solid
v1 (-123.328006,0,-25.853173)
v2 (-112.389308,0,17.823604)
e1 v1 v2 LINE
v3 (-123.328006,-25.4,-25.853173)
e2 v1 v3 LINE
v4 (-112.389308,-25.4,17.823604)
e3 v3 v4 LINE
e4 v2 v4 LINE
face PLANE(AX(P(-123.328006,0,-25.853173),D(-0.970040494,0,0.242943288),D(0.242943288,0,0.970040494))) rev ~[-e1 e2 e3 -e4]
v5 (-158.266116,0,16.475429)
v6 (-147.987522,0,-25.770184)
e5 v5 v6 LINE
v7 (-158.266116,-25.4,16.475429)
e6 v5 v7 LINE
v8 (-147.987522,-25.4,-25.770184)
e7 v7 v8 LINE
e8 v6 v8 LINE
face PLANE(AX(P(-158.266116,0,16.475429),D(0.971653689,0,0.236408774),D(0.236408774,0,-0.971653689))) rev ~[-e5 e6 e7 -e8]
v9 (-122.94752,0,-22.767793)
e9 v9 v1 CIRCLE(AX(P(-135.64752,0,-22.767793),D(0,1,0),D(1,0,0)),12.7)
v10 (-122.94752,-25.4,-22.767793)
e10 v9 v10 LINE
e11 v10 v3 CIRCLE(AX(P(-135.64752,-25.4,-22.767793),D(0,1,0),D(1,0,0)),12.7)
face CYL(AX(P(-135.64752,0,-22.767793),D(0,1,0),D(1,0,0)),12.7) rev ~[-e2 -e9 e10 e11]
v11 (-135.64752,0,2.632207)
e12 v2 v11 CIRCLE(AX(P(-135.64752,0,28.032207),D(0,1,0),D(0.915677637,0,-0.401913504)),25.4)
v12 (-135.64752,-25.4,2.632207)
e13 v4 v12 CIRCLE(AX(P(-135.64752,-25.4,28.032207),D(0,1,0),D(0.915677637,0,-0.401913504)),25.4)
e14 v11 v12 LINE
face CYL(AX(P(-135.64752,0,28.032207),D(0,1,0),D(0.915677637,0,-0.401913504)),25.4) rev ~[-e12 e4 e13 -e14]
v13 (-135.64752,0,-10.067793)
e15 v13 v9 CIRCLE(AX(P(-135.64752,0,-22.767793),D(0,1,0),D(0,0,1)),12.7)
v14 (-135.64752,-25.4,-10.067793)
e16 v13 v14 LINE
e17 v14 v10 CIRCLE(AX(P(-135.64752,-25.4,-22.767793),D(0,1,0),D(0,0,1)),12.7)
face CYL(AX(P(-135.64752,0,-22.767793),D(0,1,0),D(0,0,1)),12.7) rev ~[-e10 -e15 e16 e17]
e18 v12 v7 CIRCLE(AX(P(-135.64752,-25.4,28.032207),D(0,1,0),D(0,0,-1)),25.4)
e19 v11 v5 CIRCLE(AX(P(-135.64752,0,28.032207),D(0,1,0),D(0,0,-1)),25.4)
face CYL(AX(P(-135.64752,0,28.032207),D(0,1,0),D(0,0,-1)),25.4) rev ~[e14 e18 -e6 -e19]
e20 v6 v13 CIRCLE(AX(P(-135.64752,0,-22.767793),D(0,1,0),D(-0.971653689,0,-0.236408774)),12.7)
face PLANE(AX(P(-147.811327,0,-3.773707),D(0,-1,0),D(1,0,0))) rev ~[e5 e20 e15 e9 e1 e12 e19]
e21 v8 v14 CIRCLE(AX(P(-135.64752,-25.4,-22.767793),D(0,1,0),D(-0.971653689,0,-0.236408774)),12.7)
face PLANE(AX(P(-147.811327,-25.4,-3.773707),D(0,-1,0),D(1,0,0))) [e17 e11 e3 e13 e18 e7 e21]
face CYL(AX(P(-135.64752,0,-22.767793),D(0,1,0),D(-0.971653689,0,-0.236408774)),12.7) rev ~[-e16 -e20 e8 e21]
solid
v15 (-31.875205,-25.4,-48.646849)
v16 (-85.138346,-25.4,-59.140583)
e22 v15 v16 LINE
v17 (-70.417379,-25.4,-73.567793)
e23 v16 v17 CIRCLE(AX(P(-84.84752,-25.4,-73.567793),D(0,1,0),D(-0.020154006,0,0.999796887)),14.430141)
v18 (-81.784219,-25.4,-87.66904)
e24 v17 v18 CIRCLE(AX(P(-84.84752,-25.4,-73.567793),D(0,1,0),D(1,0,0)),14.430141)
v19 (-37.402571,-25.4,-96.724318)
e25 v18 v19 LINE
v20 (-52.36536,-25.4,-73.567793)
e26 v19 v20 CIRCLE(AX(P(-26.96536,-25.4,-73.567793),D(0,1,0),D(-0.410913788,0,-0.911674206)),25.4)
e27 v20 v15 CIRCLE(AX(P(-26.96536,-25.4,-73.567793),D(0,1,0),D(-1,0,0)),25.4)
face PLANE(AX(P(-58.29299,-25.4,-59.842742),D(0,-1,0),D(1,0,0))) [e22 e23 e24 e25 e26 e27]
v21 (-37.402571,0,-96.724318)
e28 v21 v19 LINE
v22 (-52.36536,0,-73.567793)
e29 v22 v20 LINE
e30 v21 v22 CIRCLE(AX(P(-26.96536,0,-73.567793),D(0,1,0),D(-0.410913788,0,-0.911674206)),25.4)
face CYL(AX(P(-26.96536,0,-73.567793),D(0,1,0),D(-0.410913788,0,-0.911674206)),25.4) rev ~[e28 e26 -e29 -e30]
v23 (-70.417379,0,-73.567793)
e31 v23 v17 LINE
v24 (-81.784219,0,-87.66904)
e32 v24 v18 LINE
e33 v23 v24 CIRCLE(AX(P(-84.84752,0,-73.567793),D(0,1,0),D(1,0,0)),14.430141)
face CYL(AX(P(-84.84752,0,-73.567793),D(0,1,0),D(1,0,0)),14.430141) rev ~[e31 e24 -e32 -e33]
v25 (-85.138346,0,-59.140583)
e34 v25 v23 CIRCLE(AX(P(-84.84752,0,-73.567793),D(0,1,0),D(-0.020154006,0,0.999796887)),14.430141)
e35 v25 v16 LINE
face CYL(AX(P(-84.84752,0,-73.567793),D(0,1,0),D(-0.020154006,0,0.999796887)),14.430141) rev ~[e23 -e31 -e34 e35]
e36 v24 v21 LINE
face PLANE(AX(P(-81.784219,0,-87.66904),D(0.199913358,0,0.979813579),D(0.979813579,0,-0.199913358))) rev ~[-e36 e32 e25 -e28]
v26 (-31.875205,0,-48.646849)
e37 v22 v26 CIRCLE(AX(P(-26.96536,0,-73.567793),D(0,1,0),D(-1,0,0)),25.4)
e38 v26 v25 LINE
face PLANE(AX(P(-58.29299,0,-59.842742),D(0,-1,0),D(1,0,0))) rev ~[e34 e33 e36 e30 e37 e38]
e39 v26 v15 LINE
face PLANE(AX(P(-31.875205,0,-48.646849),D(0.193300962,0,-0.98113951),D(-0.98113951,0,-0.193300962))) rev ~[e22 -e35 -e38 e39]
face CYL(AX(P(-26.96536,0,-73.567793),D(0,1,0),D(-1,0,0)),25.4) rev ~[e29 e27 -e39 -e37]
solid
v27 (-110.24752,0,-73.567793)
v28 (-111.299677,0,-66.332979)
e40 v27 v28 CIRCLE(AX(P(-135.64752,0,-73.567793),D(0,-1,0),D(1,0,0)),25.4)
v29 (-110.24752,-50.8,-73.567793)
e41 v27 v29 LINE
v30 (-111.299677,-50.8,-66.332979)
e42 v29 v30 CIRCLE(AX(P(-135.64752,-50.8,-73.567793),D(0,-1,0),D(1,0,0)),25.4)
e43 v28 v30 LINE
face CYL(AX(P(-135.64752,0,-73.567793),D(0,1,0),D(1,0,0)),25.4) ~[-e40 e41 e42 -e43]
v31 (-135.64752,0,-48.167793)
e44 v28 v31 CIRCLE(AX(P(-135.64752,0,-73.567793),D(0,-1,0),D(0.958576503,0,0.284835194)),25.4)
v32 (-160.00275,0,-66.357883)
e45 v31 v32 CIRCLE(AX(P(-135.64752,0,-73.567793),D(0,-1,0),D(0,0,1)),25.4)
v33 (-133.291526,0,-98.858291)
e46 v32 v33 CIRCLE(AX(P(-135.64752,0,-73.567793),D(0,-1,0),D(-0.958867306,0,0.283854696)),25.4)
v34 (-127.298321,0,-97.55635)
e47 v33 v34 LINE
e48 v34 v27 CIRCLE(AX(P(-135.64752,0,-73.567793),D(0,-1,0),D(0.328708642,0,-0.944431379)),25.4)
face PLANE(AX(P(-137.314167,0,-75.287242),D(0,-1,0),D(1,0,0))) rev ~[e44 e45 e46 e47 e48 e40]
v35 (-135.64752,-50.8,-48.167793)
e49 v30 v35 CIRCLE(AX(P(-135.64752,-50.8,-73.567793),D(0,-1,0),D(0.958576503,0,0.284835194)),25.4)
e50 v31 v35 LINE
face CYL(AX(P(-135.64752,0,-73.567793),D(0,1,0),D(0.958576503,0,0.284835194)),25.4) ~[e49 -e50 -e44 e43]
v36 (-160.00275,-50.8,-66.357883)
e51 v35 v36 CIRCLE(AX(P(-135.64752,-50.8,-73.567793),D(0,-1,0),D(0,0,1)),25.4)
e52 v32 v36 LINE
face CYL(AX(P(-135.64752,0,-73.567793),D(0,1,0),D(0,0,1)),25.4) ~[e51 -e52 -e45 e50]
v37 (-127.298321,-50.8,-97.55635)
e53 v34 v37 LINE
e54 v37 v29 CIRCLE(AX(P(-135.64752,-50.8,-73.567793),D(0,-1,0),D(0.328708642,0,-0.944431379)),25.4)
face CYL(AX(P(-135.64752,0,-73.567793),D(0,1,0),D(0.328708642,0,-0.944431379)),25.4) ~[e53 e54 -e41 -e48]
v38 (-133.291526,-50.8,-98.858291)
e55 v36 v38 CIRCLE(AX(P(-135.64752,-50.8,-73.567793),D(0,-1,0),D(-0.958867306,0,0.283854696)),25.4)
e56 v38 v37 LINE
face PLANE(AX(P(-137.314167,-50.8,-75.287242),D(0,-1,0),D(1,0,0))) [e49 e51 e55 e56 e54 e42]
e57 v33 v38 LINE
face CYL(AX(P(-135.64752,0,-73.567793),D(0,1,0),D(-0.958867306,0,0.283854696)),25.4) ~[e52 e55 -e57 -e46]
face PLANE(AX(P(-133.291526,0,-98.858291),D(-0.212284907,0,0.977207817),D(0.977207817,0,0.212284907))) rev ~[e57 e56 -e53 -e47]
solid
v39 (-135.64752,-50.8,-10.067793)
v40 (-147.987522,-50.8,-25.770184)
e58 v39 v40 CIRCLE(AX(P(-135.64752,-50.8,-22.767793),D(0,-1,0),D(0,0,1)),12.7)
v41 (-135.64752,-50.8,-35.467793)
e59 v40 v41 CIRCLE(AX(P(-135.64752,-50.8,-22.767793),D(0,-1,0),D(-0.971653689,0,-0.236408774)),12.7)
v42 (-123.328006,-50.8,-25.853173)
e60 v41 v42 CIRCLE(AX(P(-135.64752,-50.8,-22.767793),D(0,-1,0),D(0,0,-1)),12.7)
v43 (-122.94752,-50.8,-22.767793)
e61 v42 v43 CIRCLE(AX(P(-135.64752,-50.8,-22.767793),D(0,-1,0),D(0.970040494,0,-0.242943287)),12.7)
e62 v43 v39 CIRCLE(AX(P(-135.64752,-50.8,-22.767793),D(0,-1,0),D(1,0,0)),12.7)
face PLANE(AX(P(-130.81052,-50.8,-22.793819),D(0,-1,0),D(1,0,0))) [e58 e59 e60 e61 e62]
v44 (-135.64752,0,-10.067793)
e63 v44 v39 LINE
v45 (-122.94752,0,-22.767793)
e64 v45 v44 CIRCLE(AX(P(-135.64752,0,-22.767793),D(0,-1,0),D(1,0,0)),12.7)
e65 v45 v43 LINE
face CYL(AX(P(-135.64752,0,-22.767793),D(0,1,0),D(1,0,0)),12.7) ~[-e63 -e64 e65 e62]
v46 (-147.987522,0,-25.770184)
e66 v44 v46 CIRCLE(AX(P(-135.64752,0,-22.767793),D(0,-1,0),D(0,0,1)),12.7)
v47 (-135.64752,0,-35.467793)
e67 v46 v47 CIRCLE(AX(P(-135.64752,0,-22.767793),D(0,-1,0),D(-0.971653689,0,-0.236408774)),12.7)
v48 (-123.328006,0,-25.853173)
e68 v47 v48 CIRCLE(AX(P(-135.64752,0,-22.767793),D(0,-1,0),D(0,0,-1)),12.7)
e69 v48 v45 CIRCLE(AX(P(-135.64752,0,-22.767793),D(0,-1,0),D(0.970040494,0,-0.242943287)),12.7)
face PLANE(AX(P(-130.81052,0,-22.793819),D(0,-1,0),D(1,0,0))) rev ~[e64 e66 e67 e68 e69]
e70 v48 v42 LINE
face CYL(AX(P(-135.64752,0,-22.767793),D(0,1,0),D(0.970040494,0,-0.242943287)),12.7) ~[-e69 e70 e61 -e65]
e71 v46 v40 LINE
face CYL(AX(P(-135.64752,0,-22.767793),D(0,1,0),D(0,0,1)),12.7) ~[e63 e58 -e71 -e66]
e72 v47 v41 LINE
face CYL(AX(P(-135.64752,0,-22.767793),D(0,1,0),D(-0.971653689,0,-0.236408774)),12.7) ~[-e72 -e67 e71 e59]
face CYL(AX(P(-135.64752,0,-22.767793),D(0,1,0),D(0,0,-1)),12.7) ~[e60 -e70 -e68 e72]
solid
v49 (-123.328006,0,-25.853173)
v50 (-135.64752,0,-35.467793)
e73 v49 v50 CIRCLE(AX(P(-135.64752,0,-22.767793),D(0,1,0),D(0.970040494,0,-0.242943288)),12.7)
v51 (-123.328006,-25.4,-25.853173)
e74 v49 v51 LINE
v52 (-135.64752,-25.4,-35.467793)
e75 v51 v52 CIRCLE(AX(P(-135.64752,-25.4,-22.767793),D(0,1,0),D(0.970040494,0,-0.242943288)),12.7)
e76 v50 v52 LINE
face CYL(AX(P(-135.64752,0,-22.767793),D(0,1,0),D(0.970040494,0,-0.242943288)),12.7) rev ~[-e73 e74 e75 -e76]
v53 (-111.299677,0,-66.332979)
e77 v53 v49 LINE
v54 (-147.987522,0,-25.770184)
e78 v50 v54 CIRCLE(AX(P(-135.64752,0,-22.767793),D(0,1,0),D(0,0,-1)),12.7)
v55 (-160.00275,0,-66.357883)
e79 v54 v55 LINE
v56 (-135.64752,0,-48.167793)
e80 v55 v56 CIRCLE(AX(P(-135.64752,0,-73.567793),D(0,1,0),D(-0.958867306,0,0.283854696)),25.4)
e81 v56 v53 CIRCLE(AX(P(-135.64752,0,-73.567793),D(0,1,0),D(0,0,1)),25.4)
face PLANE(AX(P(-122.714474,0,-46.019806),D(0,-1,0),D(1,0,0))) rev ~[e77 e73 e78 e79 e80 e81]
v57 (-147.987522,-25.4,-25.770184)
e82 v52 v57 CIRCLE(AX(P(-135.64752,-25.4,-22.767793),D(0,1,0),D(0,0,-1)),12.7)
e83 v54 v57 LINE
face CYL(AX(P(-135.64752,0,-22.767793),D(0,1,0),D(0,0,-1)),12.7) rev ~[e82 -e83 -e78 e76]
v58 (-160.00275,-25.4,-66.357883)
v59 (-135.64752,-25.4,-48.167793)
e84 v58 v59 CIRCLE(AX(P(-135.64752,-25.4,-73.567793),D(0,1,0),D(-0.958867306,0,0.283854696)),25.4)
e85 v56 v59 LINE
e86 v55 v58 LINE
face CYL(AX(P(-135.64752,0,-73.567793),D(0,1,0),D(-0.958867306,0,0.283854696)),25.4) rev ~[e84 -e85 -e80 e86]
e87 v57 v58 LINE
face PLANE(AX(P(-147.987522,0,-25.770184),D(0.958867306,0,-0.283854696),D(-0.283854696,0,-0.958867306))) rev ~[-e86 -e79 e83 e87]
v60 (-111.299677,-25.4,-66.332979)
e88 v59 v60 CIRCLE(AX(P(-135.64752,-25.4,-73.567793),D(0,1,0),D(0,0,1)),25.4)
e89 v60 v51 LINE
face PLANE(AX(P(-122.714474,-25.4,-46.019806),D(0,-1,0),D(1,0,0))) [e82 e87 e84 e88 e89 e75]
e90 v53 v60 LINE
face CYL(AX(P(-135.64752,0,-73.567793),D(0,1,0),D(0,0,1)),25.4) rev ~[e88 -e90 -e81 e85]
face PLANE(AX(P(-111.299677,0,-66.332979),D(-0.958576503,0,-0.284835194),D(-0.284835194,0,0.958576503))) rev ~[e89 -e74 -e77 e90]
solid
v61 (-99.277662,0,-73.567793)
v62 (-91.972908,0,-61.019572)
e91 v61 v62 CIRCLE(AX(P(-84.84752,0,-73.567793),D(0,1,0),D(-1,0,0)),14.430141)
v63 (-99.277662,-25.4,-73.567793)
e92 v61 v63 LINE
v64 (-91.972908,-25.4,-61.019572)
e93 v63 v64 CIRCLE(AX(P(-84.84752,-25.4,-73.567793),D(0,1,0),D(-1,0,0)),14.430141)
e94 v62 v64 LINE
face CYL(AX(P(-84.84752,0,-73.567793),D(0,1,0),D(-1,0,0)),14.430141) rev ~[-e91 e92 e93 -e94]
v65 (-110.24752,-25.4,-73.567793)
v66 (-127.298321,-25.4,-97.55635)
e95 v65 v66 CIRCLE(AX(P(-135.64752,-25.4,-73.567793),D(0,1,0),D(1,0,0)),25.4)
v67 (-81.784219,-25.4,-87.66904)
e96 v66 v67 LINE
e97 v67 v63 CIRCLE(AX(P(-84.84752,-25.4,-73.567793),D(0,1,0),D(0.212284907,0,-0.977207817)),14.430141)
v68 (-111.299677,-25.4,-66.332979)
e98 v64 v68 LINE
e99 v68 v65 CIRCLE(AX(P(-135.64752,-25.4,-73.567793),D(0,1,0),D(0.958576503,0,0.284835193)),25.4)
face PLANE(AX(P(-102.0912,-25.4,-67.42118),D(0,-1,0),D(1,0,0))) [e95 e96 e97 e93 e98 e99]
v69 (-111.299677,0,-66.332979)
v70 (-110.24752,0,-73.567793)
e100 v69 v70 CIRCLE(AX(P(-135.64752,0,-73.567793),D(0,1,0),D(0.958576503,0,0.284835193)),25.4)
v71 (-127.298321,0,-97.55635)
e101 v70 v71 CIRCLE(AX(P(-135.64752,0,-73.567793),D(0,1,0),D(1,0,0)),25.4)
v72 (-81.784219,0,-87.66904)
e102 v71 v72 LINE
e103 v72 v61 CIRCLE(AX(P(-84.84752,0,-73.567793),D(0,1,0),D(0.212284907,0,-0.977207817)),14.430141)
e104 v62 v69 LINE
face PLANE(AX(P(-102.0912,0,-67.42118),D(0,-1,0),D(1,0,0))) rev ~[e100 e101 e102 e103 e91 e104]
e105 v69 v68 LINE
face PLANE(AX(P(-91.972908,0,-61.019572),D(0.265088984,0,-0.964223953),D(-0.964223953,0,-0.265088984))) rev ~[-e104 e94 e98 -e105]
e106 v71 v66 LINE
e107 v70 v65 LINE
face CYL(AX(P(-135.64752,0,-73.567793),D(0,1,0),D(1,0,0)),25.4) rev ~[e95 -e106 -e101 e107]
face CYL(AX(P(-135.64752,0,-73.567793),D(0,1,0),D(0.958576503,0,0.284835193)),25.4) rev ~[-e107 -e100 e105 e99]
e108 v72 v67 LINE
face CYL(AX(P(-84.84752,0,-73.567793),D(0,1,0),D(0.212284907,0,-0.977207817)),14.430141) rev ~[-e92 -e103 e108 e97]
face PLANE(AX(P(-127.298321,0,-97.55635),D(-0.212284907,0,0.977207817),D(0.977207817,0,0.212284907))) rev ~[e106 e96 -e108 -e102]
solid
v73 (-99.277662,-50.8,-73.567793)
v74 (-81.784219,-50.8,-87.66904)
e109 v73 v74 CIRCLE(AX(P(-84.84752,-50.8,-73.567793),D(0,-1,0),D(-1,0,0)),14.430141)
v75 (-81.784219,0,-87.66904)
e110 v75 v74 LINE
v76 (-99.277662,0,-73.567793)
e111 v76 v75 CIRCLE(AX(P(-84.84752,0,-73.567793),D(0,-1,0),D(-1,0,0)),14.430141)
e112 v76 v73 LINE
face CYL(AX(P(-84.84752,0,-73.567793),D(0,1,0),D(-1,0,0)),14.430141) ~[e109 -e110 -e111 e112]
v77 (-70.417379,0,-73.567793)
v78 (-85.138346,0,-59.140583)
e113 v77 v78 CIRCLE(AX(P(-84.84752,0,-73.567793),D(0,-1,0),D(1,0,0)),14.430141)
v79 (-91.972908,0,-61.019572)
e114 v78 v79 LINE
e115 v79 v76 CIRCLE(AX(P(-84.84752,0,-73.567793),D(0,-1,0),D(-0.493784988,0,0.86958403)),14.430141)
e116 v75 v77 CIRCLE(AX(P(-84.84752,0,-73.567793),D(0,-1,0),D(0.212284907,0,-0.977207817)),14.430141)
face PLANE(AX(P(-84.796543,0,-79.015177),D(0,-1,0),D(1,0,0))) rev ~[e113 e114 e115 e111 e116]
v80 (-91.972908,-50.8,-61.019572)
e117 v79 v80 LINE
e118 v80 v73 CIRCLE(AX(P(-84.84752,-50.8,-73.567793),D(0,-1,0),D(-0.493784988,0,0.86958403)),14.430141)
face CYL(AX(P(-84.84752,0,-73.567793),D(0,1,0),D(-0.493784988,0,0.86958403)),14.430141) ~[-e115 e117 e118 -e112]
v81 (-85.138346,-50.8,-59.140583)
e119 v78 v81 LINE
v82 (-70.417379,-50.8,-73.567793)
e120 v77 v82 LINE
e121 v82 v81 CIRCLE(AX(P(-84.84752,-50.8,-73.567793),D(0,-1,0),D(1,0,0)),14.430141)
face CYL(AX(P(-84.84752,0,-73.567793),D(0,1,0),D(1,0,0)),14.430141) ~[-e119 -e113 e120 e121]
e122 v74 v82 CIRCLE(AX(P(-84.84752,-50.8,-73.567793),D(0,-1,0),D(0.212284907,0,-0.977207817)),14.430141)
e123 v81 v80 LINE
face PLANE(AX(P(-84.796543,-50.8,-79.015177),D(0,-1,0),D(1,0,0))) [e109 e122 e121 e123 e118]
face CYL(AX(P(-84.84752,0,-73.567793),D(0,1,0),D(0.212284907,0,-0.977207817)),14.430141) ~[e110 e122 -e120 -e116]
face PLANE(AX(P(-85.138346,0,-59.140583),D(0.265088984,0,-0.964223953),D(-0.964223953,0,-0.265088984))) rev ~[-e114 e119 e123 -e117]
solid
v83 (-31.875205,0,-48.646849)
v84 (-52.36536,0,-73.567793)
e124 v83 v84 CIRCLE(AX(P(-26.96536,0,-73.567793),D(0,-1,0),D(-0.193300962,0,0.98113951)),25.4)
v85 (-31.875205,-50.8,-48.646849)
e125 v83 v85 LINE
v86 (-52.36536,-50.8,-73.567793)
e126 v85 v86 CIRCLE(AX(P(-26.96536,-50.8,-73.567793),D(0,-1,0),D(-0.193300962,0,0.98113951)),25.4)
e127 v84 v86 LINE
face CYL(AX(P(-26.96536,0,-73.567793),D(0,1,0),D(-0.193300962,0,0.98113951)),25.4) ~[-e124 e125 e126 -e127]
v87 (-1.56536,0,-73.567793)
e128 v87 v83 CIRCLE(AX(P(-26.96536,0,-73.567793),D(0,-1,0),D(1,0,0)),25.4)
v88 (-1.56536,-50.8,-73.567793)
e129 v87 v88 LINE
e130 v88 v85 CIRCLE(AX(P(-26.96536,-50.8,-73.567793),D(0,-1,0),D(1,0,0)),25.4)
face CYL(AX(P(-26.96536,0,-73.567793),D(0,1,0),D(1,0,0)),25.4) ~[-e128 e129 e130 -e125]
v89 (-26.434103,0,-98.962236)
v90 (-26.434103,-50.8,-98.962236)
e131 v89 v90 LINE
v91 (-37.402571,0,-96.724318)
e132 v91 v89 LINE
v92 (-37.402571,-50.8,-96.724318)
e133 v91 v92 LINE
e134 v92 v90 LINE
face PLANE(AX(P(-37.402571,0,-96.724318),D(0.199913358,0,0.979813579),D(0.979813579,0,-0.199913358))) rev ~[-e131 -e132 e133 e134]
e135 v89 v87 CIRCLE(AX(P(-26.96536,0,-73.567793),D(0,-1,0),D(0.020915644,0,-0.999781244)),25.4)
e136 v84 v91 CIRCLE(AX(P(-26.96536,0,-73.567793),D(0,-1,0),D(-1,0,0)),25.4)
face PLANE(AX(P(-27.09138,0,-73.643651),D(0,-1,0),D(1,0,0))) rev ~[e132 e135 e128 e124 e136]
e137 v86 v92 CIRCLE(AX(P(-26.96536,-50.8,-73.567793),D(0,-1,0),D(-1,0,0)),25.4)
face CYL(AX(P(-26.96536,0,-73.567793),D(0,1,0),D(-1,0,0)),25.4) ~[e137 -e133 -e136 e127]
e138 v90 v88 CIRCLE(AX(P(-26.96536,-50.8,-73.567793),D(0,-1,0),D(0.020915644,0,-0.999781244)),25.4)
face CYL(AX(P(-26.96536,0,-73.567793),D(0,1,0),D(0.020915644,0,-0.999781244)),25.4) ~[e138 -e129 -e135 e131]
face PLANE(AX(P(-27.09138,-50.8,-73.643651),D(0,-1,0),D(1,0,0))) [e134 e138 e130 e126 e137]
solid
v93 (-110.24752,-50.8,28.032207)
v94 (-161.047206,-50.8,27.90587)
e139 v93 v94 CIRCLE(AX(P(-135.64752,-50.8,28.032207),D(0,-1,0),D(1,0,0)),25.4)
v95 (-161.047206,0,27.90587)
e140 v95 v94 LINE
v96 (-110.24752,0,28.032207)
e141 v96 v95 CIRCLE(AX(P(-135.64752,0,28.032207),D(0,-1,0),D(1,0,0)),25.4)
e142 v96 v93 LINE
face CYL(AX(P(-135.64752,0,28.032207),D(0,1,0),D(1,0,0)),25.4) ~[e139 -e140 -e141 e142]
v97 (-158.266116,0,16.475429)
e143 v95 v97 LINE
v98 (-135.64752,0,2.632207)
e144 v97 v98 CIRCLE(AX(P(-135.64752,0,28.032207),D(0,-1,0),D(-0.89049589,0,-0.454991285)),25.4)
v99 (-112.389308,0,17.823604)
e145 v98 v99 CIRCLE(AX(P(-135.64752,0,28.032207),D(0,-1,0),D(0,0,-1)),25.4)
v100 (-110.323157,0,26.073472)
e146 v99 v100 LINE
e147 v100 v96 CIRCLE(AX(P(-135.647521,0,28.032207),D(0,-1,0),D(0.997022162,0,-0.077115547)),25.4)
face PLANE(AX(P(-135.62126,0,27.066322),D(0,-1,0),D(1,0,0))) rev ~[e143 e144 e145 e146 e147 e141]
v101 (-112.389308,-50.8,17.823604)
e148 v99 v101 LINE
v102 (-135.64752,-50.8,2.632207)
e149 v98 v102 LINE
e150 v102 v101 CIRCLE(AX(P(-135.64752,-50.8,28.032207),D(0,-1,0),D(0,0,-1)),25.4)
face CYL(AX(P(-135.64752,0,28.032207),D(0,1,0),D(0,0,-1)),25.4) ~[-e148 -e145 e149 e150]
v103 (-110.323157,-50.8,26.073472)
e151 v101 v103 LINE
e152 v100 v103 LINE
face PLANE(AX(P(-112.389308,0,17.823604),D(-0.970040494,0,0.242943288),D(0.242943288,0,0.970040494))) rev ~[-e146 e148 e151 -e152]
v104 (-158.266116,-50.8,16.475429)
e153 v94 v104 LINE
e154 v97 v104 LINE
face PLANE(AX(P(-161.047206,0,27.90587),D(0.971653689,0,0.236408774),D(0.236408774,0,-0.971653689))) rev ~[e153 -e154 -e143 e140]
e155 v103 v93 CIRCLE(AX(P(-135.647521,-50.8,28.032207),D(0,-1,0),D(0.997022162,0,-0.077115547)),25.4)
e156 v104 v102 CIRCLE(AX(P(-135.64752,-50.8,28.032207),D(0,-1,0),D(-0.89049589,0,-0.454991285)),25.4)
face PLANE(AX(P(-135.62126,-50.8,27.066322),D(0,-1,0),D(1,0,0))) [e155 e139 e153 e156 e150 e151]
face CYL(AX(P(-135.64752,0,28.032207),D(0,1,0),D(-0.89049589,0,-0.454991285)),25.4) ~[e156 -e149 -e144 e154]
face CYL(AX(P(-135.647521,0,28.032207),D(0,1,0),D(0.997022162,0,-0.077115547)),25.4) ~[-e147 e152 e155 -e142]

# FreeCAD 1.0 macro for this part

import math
import FreeCAD as App
import Part
import Sketcher
Q = App.Units.Quantity

doc = App.newDocument("Part")
body = doc.addObject("PartDesign::Body", "Body")

# Sketch on XZ plane
sketch1 = body.newObject("Sketcher::SketchObject", "Sketch")
sketch1.AttachmentSupport = (doc.getObject("XZ_Plane"), [""])
sketch1.MapMode = "FlatFace"
sketch1.addGeometry([
    Part.ArcOfCircle(Part.Circle(App.Vector(-135.6, 28, 0), App.Vector(0, 0, 1), 25.4), math.radians(-90), math.radians(-24)),  # 0
    Part.LineSegment(App.Vector(-112.4, 17.8, 0), App.Vector(-110.3, 26.1, 0)),  # 1
    Part.ArcOfCircle(Part.Circle(App.Vector(-135.6, 28, 0), App.Vector(0, 0, 1), 25.4), math.radians(-4.42), math.radians(0)),  # 2
    Part.ArcOfCircle(Part.Circle(App.Vector(-135.6, 28, 0), App.Vector(0, 0, 1), 25.4), math.radians(0), math.radians(180)),  # 3
    Part.LineSegment(App.Vector(-161, 27.9, 0), App.Vector(-158.3, 16.5, 0)),  # 4
    Part.ArcOfCircle(Part.Circle(App.Vector(-135.6, 28, 0), App.Vector(0, 0, 1), 25.4), math.radians(-153), math.radians(-90)),  # 5
], False)
sketch1.addConstraint([
    Sketcher.Constraint("Coincident", 0, 2, 1, 1),
    Sketcher.Constraint("Coincident", 1, 2, 2, 1),
    Sketcher.Constraint("Tangent", 2, 2, 3, 1),
    Sketcher.Constraint("Coincident", 3, 2, 4, 1),
    Sketcher.Constraint("Coincident", 4, 2, 5, 1),
    Sketcher.Constraint("Tangent", 5, 2, 0, 1),
    Sketcher.Constraint("Coincident", 2, 3, 0, 3),
    Sketcher.Constraint("Equal", 0, 2),
    Sketcher.Constraint("Equal", 2, 3),
    Sketcher.Constraint("Equal", 3, 5),
    Sketcher.Constraint("Horizontal", 5, 3, 2, 2),
    Sketcher.Constraint("Vertical", 3, 3, 5, 2),
    Sketcher.Constraint("Radius", 0, Q("1 in")),
    Sketcher.Constraint("DistanceX", 0, 3, -1, 1, Q("135.64752 mm")),
    Sketcher.Constraint("DistanceX", 0, 2, -1, 1, Q("112.389308 mm")),
    Sketcher.Constraint("DistanceY", -1, 1, 3, 2, Q("27.90587 mm")),
    Sketcher.Constraint("DistanceY", -1, 1, 4, 2, Q("16.475429 mm")),
    Sketcher.Constraint("DistanceX", 0, 2, 1, 2, Q("2.066151 mm")),
    Sketcher.Constraint("DistanceX", 3, 2, 4, 2, Q("2.78109 mm")),
])
pad1 = body.newObject("PartDesign::Pad", "Pad")
pad1.Profile = sketch1
pad1.Length = Q("2 in")
body2 = doc.addObject("PartDesign::Body", "Body001")

# Sketch on XZ plane
sketch2 = body2.newObject("Sketcher::SketchObject", "Sketch001")
sketch2.AttachmentSupport = (doc.getObject("XZ_Plane001"), [""])
sketch2.MapMode = "FlatFace"
sketch2.addGeometry([
    Part.ArcOfCircle(Part.Circle(App.Vector(-135.6, -22.8, 0), App.Vector(0, 0, 1), 12.7), math.radians(-90), math.radians(-14)),  # 0
    Part.ArcOfCircle(Part.Circle(App.Vector(-135.6, -22.8, 0), App.Vector(0, 0, 1), 12.7), math.radians(-14.06), math.radians(0)),  # 1
    Part.ArcOfCircle(Part.Circle(App.Vector(-135.6, -22.8, 0), App.Vector(0, 0, 1), 12.7), math.radians(0), math.radians(90)),  # 2
    Part.ArcOfCircle(Part.Circle(App.Vector(-135.6, -22.8, 0), App.Vector(0, 0, 1), 12.7), math.radians(90), math.radians(194)),  # 3
    Part.ArcOfCircle(Part.Circle(App.Vector(-135.6, -22.8, 0), App.Vector(0, 0, 1), 12.7), math.radians(-166), math.radians(-90)),  # 4
], False)
sketch2.addConstraint([
    Sketcher.Constraint("Tangent", 0, 2, 1, 1),
    Sketcher.Constraint("Tangent", 1, 2, 2, 1),
    Sketcher.Constraint("Tangent", 2, 2, 3, 1),
    Sketcher.Constraint("Tangent", 3, 2, 4, 1),
    Sketcher.Constraint("Tangent", 4, 2, 0, 1),
    Sketcher.Constraint("Coincident", 2, 3, 0, 3),
    Sketcher.Constraint("Horizontal", 4, 3, 1, 2),
    Sketcher.Constraint("Vertical", 4, 3, 2, 2),
    Sketcher.Constraint("Vertical", 2, 2, 4, 2),
    Sketcher.Constraint("Radius", 0, Q("0.5 in")),
    Sketcher.Constraint("DistanceX", 3, 2, 1, 3, Q("12.340002 mm")),
    Sketcher.Constraint("DistanceX", 0, 3, -1, 1, Q("135.64752 mm")),
    Sketcher.Constraint("DistanceY", 0, 2, 0, 3, Q("3.08538 mm")),
    Sketcher.Constraint("DistanceY", 0, 3, -1, 1, Q("22.767793 mm")),
])
pad2 = body2.newObject("PartDesign::Pad", "Pad001")
pad2.Profile = sketch2
pad2.Length = Q("2 in")
body3 = doc.addObject("PartDesign::Body", "Body002")

# Sketch on XZ plane
sketch3 = body3.newObject("Sketcher::SketchObject", "Sketch002")
sketch3.AttachmentSupport = (doc.getObject("XZ_Plane002"), [""])
sketch3.MapMode = "FlatFace"
sketch3.addGeometry([
    Part.ArcOfCircle(Part.Circle(App.Vector(-136, -74, 0), App.Vector(0, 0, 1), 25), math.radians(90), math.radians(164)),  # 0
    Part.ArcOfCircle(Part.Circle(App.Vector(-136, -74, 0), App.Vector(0, 0, 1), 25), math.radians(164), math.radians(275)),  # 1
    Part.LineSegment(App.Vector(-133, -99, 0), App.Vector(-127, -98, 0)),  # 2
    Part.ArcOfCircle(Part.Circle(App.Vector(-136, -74, 0), App.Vector(0, 0, 1), 25), math.radians(-71), math.radians(0)),  # 3
    Part.ArcOfCircle(Part.Circle(App.Vector(-136, -74, 0), App.Vector(0, 0, 1), 25), math.radians(0), math.radians(16.55)),  # 4
    Part.ArcOfCircle(Part.Circle(App.Vector(-136, -74, 0), App.Vector(0, 0, 1), 25), math.radians(17), math.radians(90)),  # 5
], False)
sketch3.addConstraint([
    Sketcher.Constraint("Tangent", 0, 2, 1, 1),
    Sketcher.Constraint("Coincident", 1, 2, 2, 1),
    Sketcher.Constraint("Coincident", 2, 2, 3, 1),
    Sketcher.Constraint("Tangent", 3, 2, 4, 1),
    Sketcher.Constraint("Tangent", 4, 2, 5, 1),
    Sketcher.Constraint("Tangent", 5, 2, 0, 1),
    Sketcher.Constraint("Coincident", 3, 3, 0, 3),
    Sketcher.Constraint("Equal", 0, 1),
    Sketcher.Constraint("Equal", 1, 3),
    Sketcher.Constraint("Horizontal", 5, 3, 3, 2),
    Sketcher.Constraint("Vertical", 4, 3, 5, 2),
    Sketcher.Constraint("Radius", 0, Q("1 in")),
    Sketcher.Constraint("DistanceX", 0, 3, 2, 2, Q("8.3492 mm")),
    Sketcher.Constraint("Distance", 2, Q("6.132989 mm")),
    Sketcher.Constraint("DistanceX", 0, 3, -1, 1, Q("135.64752 mm")),
    Sketcher.Constraint("DistanceX", 0, 2, -1, 1, Q("160.00275 mm")),
    Sketcher.Constraint("DistanceY", 1, 2, -1, 1, Q("98.858291 mm")),
    Sketcher.Constraint("DistanceY", 4, 2, -1, 1, Q("66.332979 mm")),
])
pad3 = body3.newObject("PartDesign::Pad", "Pad002")
pad3.Profile = sketch3
pad3.Length = Q("2 in")
body4 = doc.addObject("PartDesign::Body", "Body003")

# Sketch on XZ plane
sketch4 = body4.newObject("Sketcher::SketchObject", "Sketch003")
sketch4.AttachmentSupport = (doc.getObject("XZ_Plane003"), [""])
sketch4.MapMode = "FlatFace"
sketch4.addGeometry([
    Part.ArcOfCircle(Part.Circle(App.Vector(-85, -74, 0), App.Vector(0, 0, 1), 14), math.radians(180), math.radians(282)),  # 0
    Part.ArcOfCircle(Part.Circle(App.Vector(-85, -74, 0), App.Vector(0, 0, 1), 14), math.radians(-78), math.radians(0)),  # 1
    Part.ArcOfCircle(Part.Circle(App.Vector(-85, -74, 0), App.Vector(0, 0, 1), 14), math.radians(0), math.radians(91)),  # 2
    Part.LineSegment(App.Vector(-85, -59, 0), App.Vector(-92, -61, 0)),  # 3
    Part.ArcOfCircle(Part.Circle(App.Vector(-85, -74, 0), App.Vector(0, 0, 1), 14), math.radians(120), math.radians(180)),  # 4
], False)
sketch4.addConstraint([
    Sketcher.Constraint("Tangent", 0, 2, 1, 1),
    Sketcher.Constraint("Tangent", 1, 2, 2, 1),
    Sketcher.Constraint("Coincident", 2, 2, 3, 1),
    Sketcher.Constraint("Coincident", 3, 2, 4, 1),
    Sketcher.Constraint("Tangent", 4, 2, 0, 1),
    Sketcher.Constraint("Coincident", 2, 3, 0, 3),
    Sketcher.Constraint("Equal", 2, 4),
    Sketcher.Constraint("Horizontal", 4, 3, 1, 2),
    Sketcher.Constraint("Horizontal", 1, 2, 4, 2),
    Sketcher.Constraint("Radius", 0, Q("14.430141 mm")),
    Sketcher.Constraint("DistanceX", 0, 3, 0, 2, Q("3.063301 mm")),
    Sketcher.Constraint("DistanceX", 0, 3, -1, 1, Q("84.84752 mm")),
    Sketcher.Constraint("DistanceY", 0, 2, -1, 1, Q("87.66904 mm")),
    Sketcher.Constraint("DistanceY", 0, 3, 2, 2, Q("14.42721 mm")),
    Sketcher.Constraint("DistanceX", 3, 2, 2, 2, Q("6.834562 mm")),
])
pad4 = body4.newObject("PartDesign::Pad", "Pad003")
pad4.Profile = sketch4
pad4.Length = Q("2 in")
body5 = doc.addObject("PartDesign::Body", "Body004")

# Sketch on XZ plane
sketch5 = body5.newObject("Sketcher::SketchObject", "Sketch004")
sketch5.AttachmentSupport = (doc.getObject("XZ_Plane004"), [""])
sketch5.MapMode = "FlatFace"
sketch5.addGeometry([
    Part.ArcOfCircle(Part.Circle(App.Vector(-27, -74, 0), App.Vector(0, 0, 1), 25), math.radians(180), math.radians(246)),  # 0
    Part.LineSegment(App.Vector(-37, -97, 0), App.Vector(-26, -99, 0)),  # 1
    Part.ArcOfCircle(Part.Circle(App.Vector(-27, -74, 0), App.Vector(0, 0, 1), 25), math.radians(-89), math.radians(0)),  # 2
    Part.ArcOfCircle(Part.Circle(App.Vector(-27, -74, 0), App.Vector(0, 0, 1), 25), math.radians(0), math.radians(101)),  # 3
    Part.ArcOfCircle(Part.Circle(App.Vector(-27, -74, 0), App.Vector(0, 0, 1), 25), math.radians(101), math.radians(180)),  # 4
], False)
sketch5.addConstraint([
    Sketcher.Constraint("Coincident", 0, 2, 1, 1),
    Sketcher.Constraint("Coincident", 1, 2, 2, 1),
    Sketcher.Constraint("Tangent", 2, 2, 3, 1),
    Sketcher.Constraint("Tangent", 3, 2, 4, 1),
    Sketcher.Constraint("Tangent", 4, 2, 0, 1),
    Sketcher.Constraint("Coincident", 2, 3, 0, 3),
    Sketcher.Constraint("Equal", 0, 2),
    Sketcher.Constraint("Horizontal", 4, 3, 2, 2),
    Sketcher.Constraint("Horizontal", 2, 2, 4, 2),
    Sketcher.Constraint("Radius", 0, Q("1 in")),
    Sketcher.Constraint("DistanceX", 0, 3, -1, 1, Q("26.96536 mm")),
    Sketcher.Constraint("DistanceX", 0, 2, -1, 1, Q("37.402571 mm")),
    Sketcher.Constraint("DistanceY", 3, 2, -1, 1, Q("48.646849 mm")),
    Sketcher.Constraint("Distance", 1, Q("11.194443 mm")),
    Sketcher.Constraint("DistanceY", 0, 3, -1, 1, Q("73.567793 mm")),
])
pad5 = body5.newObject("PartDesign::Pad", "Pad004")
pad5.Profile = sketch5
pad5.Length = Q("2 in")
body6 = doc.addObject("PartDesign::Body", "Body005")

# Sketch on XZ plane
sketch6 = body6.newObject("Sketcher::SketchObject", "Sketch005")
sketch6.AttachmentSupport = (doc.getObject("XZ_Plane005"), [""])
sketch6.MapMode = "FlatFace"
sketch6.addGeometry([
    Part.LineSegment(App.Vector(-158.3, 16.5, 0), App.Vector(-148, -25.8, 0)),  # 0
    Part.ArcOfCircle(Part.Circle(App.Vector(-135.6, -22.8, 0), App.Vector(0, 0, 1), 12.7), math.radians(90), math.radians(194)),  # 1
    Part.ArcOfCircle(Part.Circle(App.Vector(-135.6, -22.8, 0), App.Vector(0, 0, 1), 12.7), math.radians(0), math.radians(90)),  # 2
    Part.ArcOfCircle(Part.Circle(App.Vector(-135.6, -22.8, 0), App.Vector(0, 0, 1), 12.7), math.radians(-14.06), math.radians(0)),  # 3
    Part.LineSegment(App.Vector(-123.3, -25.9, 0), App.Vector(-112.4, 17.8, 0)),  # 4
    Part.ArcOfCircle(Part.Circle(App.Vector(-135.6, 28, 0), App.Vector(0, 0, 1), 25.4), math.radians(-90), math.radians(-24)),  # 5
    Part.ArcOfCircle(Part.Circle(App.Vector(-135.6, 28, 0), App.Vector(0, 0, 1), 25.4), math.radians(-153), math.radians(-90)),  # 6
], False)
sketch6.addConstraint([
    Sketcher.Constraint("Tangent", 0, 2, 1, 2),
    Sketcher.Constraint("Tangent", 1, 1, 2, 2),
    Sketcher.Constraint("Tangent", 2, 1, 3, 2),
    Sketcher.Constraint("Tangent", 3, 1, 4, 1),
    Sketcher.Constraint("Coincident", 4, 2, 5, 2),
    Sketcher.Constraint("Tangent", 5, 1, 6, 2),
    Sketcher.Constraint("Coincident", 6, 1, 0, 1),
    Sketcher.Constraint("Coincident", 3, 3, 1, 3),
    Sketcher.Constraint("Equal", 5, 6),
    Sketcher.Constraint("Horizontal", 3, 3, 2, 1),
    Sketcher.Constraint("Vertical", 3, 3, 5, 3),
    Sketcher.Constraint("Vertical", 6, 3, 1, 1),
    Sketcher.Constraint("Vertical", 1, 1, 5, 1),
    Sketcher.Constraint("Radius", 5, Q("1 in")),
    Sketcher.Constraint("Radius", 1, Q("0.5 in")),
    Sketcher.Constraint("DistanceY", 3, 3, 5, 3, Q("2 in")),
    Sketcher.Constraint("DistanceX", 0, 2, 3, 3, Q("12.340002 mm")),
    Sketcher.Constraint("DistanceX", 1, 3, -1, 1, Q("135.64752 mm")),
    Sketcher.Constraint("DistanceX", 4, 2, -1, 1, Q("112.389308 mm")),
    Sketcher.Constraint("DistanceY", -1, 1, 6, 1, Q("16.475429 mm")),
])
pad6 = body6.newObject("PartDesign::Pad", "Pad005")
pad6.Profile = sketch6
pad6.Length = Q("1 in")
body7 = doc.addObject("PartDesign::Body", "Body006")

# Sketch on XZ plane
sketch7 = body7.newObject("Sketcher::SketchObject", "Sketch006")
sketch7.AttachmentSupport = (doc.getObject("XZ_Plane006"), [""])
sketch7.MapMode = "FlatFace"
sketch7.addGeometry([
    Part.ArcOfCircle(Part.Circle(App.Vector(-136, -74, 0), App.Vector(0, 0, 1), 25), math.radians(17), math.radians(90)),  # 0
    Part.LineSegment(App.Vector(-111, -66, 0), App.Vector(-123, -26, 0)),  # 1
    Part.ArcOfCircle(Part.Circle(App.Vector(-136, -23, 0), App.Vector(0, 0, 1), 13), math.radians(-90), math.radians(-14)),  # 2
    Part.ArcOfCircle(Part.Circle(App.Vector(-136, -23, 0), App.Vector(0, 0, 1), 13), math.radians(-166), math.radians(-90)),  # 3
    Part.LineSegment(App.Vector(-148, -26, 0), App.Vector(-160, -66, 0)),  # 4
    Part.ArcOfCircle(Part.Circle(App.Vector(-136, -74, 0), App.Vector(0, 0, 1), 25), math.radians(90), math.radians(164)),  # 5
], False)
sketch7.addConstraint([
    Sketcher.Constraint("Tangent", 0, 1, 1, 1),
    Sketcher.Constraint("Coincident", 1, 2, 2, 2),
    Sketcher.Constraint("Tangent", 2, 1, 3, 2),
    Sketcher.Constraint("Coincident", 3, 1, 4, 1),
    Sketcher.Constraint("Tangent", 4, 2, 5, 2),
    Sketcher.Constraint("Tangent", 5, 1, 0, 2),
    Sketcher.Constraint("Equal", 2, 3),
    Sketcher.Constraint("Equal", 0, 5),
    Sketcher.Constraint("Vertical", 0, 3, 2, 3),
    Sketcher.Constraint("Vertical", 5, 3, 2, 1),
    Sketcher.Constraint("Vertical", 2, 1, 5, 1),
    Sketcher.Constraint("Radius", 0, Q("1 in")),
    Sketcher.Constraint("Radius", 2, Q("0.5 in")),
    Sketcher.Constraint("DistanceY", 0, 3, 2, 3, Q("2 in")),
    Sketcher.Constraint("DistanceX", 3, 1, 2, 3, Q("12.340002 mm")),
    Sketcher.Constraint("DistanceX", 0, 3, -1, 1, Q("135.64752 mm")),
    Sketcher.Constraint("DistanceY", 0, 1, -1, 1, Q("66.332979 mm")),
    Sketcher.Constraint("DistanceY", 1, 2, 2, 3, Q("3.08538 mm")),
])
pad7 = body7.newObject("PartDesign::Pad", "Pad006")
pad7.Profile = sketch7
pad7.Length = Q("1 in")
body8 = doc.addObject("PartDesign::Body", "Body007")

# Sketch on XZ plane
sketch8 = body8.newObject("Sketcher::SketchObject", "Sketch007")
sketch8.AttachmentSupport = (doc.getObject("XZ_Plane007"), [""])
sketch8.MapMode = "FlatFace"
sketch8.addGeometry([
    Part.LineSegment(App.Vector(-32, -49, 0), App.Vector(-85, -59, 0)),  # 0
    Part.ArcOfCircle(Part.Circle(App.Vector(-85, -74, 0), App.Vector(0, 0, 1), 14), math.radians(0), math.radians(91)),  # 1
    Part.ArcOfCircle(Part.Circle(App.Vector(-85, -74, 0), App.Vector(0, 0, 1), 14), math.radians(-78), math.radians(0)),  # 2
    Part.LineSegment(App.Vector(-82, -88, 0), App.Vector(-37, -97, 0)),  # 3
    Part.ArcOfCircle(Part.Circle(App.Vector(-27, -74, 0), App.Vector(0, 0, 1), 25), math.radians(180), math.radians(246)),  # 4
    Part.ArcOfCircle(Part.Circle(App.Vector(-27, -74, 0), App.Vector(0, 0, 1), 25), math.radians(101), math.radians(180)),  # 5
], False)
sketch8.addConstraint([
    Sketcher.Constraint("Coincident", 0, 2, 1, 2),
    Sketcher.Constraint("Tangent", 1, 1, 2, 2),
    Sketcher.Constraint("Coincident", 2, 1, 3, 1),
    Sketcher.Constraint("Coincident", 3, 2, 4, 2),
    Sketcher.Constraint("Tangent", 4, 1, 5, 2),
    Sketcher.Constraint("Tangent", 5, 1, 0, 1),
    Sketcher.Constraint("Equal", 1, 2),
    Sketcher.Constraint("Equal", 4, 5),
    Sketcher.Constraint("Horizontal", 2, 3, 4, 3),
    Sketcher.Constraint("Horizontal", 5, 3, 1, 1),
    Sketcher.Constraint("Horizontal", 1, 1, 4, 1),
    Sketcher.Constraint("Radius", 4, Q("1 in")),
    Sketcher.Constraint("Radius", 1, Q("14.430141 mm")),
    Sketcher.Constraint("DistanceX", 1, 3, 2, 1, Q("3.063301 mm")),
    Sketcher.Constraint("Distance", 0, Q("54.28702 mm")),
    Sketcher.Constraint("DistanceX", 1, 3, -1, 1, Q("84.84752 mm")),
    Sketcher.Constraint("DistanceX", 4, 3, -1, 1, Q("26.96536 mm")),
    Sketcher.Constraint("DistanceY", 2, 1, -1, 1, Q("87.66904 mm")),
    Sketcher.Constraint("DistanceX", 3, 2, -1, 1, Q("37.402571 mm")),
])
pad8 = body8.newObject("PartDesign::Pad", "Pad007")
pad8.Profile = sketch8
pad8.Length = Q("1 in")
body9 = doc.addObject("PartDesign::Body", "Body008")

# Sketch on XZ plane
sketch9 = body9.newObject("Sketcher::SketchObject", "Sketch008")
sketch9.AttachmentSupport = (doc.getObject("XZ_Plane008"), [""])
sketch9.MapMode = "FlatFace"
sketch9.addGeometry([
    Part.ArcOfCircle(Part.Circle(App.Vector(-136, -74, 0), App.Vector(0, 0, 1), 25), math.radians(0), math.radians(16.55)),  # 0
    Part.ArcOfCircle(Part.Circle(App.Vector(-136, -74, 0), App.Vector(0, 0, 1), 25), math.radians(-71), math.radians(0)),  # 1
    Part.LineSegment(App.Vector(-127, -98, 0), App.Vector(-82, -88, 0)),  # 2
    Part.ArcOfCircle(Part.Circle(App.Vector(-85, -74, 0), App.Vector(0, 0, 1), 14), math.radians(180), math.radians(282)),  # 3
    Part.ArcOfCircle(Part.Circle(App.Vector(-85, -74, 0), App.Vector(0, 0, 1), 14), math.radians(120), math.radians(180)),  # 4
    Part.LineSegment(App.Vector(-92, -61, 0), App.Vector(-111, -66, 0)),  # 5
], False)
sketch9.addConstraint([
    Sketcher.Constraint("Tangent", 0, 1, 1, 2),
    Sketcher.Constraint("Coincident", 1, 1, 2, 1),
    Sketcher.Constraint("Tangent", 2, 2, 3, 2),
    Sketcher.Constraint("Tangent", 3, 1, 4, 2),
    Sketcher.Constraint("Coincident", 4, 1, 5, 1),
    Sketcher.Constraint("Coincident", 5, 2, 0, 2),
    Sketcher.Constraint("Equal", 0, 1),
    Sketcher.Constraint("Equal", 3, 4),
    Sketcher.Constraint("Horizontal", 1, 3, 3, 3),
    Sketcher.Constraint("Horizontal", 4, 3, 0, 1),
    Sketcher.Constraint("Horizontal", 0, 1, 3, 1),
    Sketcher.Constraint("Radius", 0, Q("1 in")),
    Sketcher.Constraint("DistanceX", 1, 3, 3, 3, Q("2 in")),
    Sketcher.Constraint("Radius", 3, Q("14.430141 mm")),
    Sketcher.Constraint("DistanceX", 1, 3, 1, 1, Q("8.3492 mm")),
    Sketcher.Constraint("Distance", 5, Q("20.04386 mm")),
    Sketcher.Constraint("DistanceX", 0, 3, -1, 1, Q("135.64752 mm")),
    Sketcher.Constraint("DistanceY", 1, 1, -1, 1, Q("97.55635 mm")),
    Sketcher.Constraint("DistanceY", 5, 2, -1, 1, Q("66.332979 mm")),
])
pad9 = body9.newObject("PartDesign::Pad", "Pad008")
pad9.Profile = sketch9
pad9.Length = Q("1 in")

doc.recompute()
